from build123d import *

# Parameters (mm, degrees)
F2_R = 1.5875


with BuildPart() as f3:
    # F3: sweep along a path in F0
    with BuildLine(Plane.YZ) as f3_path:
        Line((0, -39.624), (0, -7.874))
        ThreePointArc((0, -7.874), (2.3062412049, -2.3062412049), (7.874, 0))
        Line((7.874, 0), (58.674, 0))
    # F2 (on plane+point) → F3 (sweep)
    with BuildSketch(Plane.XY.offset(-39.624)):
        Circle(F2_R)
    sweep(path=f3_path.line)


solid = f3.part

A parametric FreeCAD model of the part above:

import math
import FreeCAD as App
import Part
import Sketcher
Q = App.Units.Quantity

doc = App.newDocument("Part")
body = doc.addObject("PartDesign::Body", "Body")

# Sketch on XY plane
sketch1 = body.newObject("Sketcher::SketchObject", "Sketch")
sketch1.AttachmentSupport = (doc.getObject("XY_Plane"), [""])
sketch1.MapMode = "FlatFace"
sketch1.AttachmentOffset = App.Placement(App.Vector(0, 0, -1.56 * 25.4), App.Rotation())
sketch1.addGeometry(Part.Circle(App.Vector(0, 0, 0), App.Vector(0, 0, 1), 1.6), False)
sketch1.addConstraint(Sketcher.Constraint("Coincident", 0, 3, -1, 1))
sketch1.addConstraint(Sketcher.Constraint("Diameter", 0, Q("0.125 in")))

# Sketch on YZ plane
sketch2 = body.newObject("Sketcher::SketchObject", "Sketch001")
sketch2.AttachmentSupport = (doc.getObject("YZ_Plane"), [""])
sketch2.MapMode = "FlatFace"
sketch2.addGeometry(Part.LineSegment(App.Vector(0, -40, 0), App.Vector(0, -8, 0)), False)
sketch2.addGeometry(Part.ArcOfCircle(Part.Circle(App.Vector(8, -8, 0), App.Vector(0, 0, 1), 8), math.radians(90), math.radians(180)), False)
sketch2.addGeometry(Part.LineSegment(App.Vector(8, 0, 0), App.Vector(59, 0, 0)), False)
sketch2.addConstraint(Sketcher.Constraint("Tangent", 0, 2, 1, 2))
sketch2.addConstraint(Sketcher.Constraint("Tangent", 1, 1, 2, 1))
sketch2.addConstraint(Sketcher.Constraint("Vertical", 0))
sketch2.addConstraint(Sketcher.Constraint("Horizontal", 2))
sketch2.addConstraint(Sketcher.Constraint("PointOnObject", 0, 1, -2))
sketch2.addConstraint(Sketcher.Constraint("PointOnObject", 1, 1, -1))
sketch2.addConstraint(Sketcher.Constraint("DistanceX", 2, 1, 2, 2, Q("2 in")))
sketch2.addConstraint(Sketcher.Constraint("Radius", 1, Q("0.31 in")))
sketch2.addConstraint(Sketcher.Constraint("DistanceY", 0, 1, 0, 2, Q("1.25 in")))
doc.recompute()

additivepipe = body.newObject("PartDesign::AdditivePipe", "AdditivePipe")
additivepipe.Profile = sketch1
additivepipe.Spine = (sketch2, ["Edge1", "Edge2", "Edge3"])

doc.recompute()
